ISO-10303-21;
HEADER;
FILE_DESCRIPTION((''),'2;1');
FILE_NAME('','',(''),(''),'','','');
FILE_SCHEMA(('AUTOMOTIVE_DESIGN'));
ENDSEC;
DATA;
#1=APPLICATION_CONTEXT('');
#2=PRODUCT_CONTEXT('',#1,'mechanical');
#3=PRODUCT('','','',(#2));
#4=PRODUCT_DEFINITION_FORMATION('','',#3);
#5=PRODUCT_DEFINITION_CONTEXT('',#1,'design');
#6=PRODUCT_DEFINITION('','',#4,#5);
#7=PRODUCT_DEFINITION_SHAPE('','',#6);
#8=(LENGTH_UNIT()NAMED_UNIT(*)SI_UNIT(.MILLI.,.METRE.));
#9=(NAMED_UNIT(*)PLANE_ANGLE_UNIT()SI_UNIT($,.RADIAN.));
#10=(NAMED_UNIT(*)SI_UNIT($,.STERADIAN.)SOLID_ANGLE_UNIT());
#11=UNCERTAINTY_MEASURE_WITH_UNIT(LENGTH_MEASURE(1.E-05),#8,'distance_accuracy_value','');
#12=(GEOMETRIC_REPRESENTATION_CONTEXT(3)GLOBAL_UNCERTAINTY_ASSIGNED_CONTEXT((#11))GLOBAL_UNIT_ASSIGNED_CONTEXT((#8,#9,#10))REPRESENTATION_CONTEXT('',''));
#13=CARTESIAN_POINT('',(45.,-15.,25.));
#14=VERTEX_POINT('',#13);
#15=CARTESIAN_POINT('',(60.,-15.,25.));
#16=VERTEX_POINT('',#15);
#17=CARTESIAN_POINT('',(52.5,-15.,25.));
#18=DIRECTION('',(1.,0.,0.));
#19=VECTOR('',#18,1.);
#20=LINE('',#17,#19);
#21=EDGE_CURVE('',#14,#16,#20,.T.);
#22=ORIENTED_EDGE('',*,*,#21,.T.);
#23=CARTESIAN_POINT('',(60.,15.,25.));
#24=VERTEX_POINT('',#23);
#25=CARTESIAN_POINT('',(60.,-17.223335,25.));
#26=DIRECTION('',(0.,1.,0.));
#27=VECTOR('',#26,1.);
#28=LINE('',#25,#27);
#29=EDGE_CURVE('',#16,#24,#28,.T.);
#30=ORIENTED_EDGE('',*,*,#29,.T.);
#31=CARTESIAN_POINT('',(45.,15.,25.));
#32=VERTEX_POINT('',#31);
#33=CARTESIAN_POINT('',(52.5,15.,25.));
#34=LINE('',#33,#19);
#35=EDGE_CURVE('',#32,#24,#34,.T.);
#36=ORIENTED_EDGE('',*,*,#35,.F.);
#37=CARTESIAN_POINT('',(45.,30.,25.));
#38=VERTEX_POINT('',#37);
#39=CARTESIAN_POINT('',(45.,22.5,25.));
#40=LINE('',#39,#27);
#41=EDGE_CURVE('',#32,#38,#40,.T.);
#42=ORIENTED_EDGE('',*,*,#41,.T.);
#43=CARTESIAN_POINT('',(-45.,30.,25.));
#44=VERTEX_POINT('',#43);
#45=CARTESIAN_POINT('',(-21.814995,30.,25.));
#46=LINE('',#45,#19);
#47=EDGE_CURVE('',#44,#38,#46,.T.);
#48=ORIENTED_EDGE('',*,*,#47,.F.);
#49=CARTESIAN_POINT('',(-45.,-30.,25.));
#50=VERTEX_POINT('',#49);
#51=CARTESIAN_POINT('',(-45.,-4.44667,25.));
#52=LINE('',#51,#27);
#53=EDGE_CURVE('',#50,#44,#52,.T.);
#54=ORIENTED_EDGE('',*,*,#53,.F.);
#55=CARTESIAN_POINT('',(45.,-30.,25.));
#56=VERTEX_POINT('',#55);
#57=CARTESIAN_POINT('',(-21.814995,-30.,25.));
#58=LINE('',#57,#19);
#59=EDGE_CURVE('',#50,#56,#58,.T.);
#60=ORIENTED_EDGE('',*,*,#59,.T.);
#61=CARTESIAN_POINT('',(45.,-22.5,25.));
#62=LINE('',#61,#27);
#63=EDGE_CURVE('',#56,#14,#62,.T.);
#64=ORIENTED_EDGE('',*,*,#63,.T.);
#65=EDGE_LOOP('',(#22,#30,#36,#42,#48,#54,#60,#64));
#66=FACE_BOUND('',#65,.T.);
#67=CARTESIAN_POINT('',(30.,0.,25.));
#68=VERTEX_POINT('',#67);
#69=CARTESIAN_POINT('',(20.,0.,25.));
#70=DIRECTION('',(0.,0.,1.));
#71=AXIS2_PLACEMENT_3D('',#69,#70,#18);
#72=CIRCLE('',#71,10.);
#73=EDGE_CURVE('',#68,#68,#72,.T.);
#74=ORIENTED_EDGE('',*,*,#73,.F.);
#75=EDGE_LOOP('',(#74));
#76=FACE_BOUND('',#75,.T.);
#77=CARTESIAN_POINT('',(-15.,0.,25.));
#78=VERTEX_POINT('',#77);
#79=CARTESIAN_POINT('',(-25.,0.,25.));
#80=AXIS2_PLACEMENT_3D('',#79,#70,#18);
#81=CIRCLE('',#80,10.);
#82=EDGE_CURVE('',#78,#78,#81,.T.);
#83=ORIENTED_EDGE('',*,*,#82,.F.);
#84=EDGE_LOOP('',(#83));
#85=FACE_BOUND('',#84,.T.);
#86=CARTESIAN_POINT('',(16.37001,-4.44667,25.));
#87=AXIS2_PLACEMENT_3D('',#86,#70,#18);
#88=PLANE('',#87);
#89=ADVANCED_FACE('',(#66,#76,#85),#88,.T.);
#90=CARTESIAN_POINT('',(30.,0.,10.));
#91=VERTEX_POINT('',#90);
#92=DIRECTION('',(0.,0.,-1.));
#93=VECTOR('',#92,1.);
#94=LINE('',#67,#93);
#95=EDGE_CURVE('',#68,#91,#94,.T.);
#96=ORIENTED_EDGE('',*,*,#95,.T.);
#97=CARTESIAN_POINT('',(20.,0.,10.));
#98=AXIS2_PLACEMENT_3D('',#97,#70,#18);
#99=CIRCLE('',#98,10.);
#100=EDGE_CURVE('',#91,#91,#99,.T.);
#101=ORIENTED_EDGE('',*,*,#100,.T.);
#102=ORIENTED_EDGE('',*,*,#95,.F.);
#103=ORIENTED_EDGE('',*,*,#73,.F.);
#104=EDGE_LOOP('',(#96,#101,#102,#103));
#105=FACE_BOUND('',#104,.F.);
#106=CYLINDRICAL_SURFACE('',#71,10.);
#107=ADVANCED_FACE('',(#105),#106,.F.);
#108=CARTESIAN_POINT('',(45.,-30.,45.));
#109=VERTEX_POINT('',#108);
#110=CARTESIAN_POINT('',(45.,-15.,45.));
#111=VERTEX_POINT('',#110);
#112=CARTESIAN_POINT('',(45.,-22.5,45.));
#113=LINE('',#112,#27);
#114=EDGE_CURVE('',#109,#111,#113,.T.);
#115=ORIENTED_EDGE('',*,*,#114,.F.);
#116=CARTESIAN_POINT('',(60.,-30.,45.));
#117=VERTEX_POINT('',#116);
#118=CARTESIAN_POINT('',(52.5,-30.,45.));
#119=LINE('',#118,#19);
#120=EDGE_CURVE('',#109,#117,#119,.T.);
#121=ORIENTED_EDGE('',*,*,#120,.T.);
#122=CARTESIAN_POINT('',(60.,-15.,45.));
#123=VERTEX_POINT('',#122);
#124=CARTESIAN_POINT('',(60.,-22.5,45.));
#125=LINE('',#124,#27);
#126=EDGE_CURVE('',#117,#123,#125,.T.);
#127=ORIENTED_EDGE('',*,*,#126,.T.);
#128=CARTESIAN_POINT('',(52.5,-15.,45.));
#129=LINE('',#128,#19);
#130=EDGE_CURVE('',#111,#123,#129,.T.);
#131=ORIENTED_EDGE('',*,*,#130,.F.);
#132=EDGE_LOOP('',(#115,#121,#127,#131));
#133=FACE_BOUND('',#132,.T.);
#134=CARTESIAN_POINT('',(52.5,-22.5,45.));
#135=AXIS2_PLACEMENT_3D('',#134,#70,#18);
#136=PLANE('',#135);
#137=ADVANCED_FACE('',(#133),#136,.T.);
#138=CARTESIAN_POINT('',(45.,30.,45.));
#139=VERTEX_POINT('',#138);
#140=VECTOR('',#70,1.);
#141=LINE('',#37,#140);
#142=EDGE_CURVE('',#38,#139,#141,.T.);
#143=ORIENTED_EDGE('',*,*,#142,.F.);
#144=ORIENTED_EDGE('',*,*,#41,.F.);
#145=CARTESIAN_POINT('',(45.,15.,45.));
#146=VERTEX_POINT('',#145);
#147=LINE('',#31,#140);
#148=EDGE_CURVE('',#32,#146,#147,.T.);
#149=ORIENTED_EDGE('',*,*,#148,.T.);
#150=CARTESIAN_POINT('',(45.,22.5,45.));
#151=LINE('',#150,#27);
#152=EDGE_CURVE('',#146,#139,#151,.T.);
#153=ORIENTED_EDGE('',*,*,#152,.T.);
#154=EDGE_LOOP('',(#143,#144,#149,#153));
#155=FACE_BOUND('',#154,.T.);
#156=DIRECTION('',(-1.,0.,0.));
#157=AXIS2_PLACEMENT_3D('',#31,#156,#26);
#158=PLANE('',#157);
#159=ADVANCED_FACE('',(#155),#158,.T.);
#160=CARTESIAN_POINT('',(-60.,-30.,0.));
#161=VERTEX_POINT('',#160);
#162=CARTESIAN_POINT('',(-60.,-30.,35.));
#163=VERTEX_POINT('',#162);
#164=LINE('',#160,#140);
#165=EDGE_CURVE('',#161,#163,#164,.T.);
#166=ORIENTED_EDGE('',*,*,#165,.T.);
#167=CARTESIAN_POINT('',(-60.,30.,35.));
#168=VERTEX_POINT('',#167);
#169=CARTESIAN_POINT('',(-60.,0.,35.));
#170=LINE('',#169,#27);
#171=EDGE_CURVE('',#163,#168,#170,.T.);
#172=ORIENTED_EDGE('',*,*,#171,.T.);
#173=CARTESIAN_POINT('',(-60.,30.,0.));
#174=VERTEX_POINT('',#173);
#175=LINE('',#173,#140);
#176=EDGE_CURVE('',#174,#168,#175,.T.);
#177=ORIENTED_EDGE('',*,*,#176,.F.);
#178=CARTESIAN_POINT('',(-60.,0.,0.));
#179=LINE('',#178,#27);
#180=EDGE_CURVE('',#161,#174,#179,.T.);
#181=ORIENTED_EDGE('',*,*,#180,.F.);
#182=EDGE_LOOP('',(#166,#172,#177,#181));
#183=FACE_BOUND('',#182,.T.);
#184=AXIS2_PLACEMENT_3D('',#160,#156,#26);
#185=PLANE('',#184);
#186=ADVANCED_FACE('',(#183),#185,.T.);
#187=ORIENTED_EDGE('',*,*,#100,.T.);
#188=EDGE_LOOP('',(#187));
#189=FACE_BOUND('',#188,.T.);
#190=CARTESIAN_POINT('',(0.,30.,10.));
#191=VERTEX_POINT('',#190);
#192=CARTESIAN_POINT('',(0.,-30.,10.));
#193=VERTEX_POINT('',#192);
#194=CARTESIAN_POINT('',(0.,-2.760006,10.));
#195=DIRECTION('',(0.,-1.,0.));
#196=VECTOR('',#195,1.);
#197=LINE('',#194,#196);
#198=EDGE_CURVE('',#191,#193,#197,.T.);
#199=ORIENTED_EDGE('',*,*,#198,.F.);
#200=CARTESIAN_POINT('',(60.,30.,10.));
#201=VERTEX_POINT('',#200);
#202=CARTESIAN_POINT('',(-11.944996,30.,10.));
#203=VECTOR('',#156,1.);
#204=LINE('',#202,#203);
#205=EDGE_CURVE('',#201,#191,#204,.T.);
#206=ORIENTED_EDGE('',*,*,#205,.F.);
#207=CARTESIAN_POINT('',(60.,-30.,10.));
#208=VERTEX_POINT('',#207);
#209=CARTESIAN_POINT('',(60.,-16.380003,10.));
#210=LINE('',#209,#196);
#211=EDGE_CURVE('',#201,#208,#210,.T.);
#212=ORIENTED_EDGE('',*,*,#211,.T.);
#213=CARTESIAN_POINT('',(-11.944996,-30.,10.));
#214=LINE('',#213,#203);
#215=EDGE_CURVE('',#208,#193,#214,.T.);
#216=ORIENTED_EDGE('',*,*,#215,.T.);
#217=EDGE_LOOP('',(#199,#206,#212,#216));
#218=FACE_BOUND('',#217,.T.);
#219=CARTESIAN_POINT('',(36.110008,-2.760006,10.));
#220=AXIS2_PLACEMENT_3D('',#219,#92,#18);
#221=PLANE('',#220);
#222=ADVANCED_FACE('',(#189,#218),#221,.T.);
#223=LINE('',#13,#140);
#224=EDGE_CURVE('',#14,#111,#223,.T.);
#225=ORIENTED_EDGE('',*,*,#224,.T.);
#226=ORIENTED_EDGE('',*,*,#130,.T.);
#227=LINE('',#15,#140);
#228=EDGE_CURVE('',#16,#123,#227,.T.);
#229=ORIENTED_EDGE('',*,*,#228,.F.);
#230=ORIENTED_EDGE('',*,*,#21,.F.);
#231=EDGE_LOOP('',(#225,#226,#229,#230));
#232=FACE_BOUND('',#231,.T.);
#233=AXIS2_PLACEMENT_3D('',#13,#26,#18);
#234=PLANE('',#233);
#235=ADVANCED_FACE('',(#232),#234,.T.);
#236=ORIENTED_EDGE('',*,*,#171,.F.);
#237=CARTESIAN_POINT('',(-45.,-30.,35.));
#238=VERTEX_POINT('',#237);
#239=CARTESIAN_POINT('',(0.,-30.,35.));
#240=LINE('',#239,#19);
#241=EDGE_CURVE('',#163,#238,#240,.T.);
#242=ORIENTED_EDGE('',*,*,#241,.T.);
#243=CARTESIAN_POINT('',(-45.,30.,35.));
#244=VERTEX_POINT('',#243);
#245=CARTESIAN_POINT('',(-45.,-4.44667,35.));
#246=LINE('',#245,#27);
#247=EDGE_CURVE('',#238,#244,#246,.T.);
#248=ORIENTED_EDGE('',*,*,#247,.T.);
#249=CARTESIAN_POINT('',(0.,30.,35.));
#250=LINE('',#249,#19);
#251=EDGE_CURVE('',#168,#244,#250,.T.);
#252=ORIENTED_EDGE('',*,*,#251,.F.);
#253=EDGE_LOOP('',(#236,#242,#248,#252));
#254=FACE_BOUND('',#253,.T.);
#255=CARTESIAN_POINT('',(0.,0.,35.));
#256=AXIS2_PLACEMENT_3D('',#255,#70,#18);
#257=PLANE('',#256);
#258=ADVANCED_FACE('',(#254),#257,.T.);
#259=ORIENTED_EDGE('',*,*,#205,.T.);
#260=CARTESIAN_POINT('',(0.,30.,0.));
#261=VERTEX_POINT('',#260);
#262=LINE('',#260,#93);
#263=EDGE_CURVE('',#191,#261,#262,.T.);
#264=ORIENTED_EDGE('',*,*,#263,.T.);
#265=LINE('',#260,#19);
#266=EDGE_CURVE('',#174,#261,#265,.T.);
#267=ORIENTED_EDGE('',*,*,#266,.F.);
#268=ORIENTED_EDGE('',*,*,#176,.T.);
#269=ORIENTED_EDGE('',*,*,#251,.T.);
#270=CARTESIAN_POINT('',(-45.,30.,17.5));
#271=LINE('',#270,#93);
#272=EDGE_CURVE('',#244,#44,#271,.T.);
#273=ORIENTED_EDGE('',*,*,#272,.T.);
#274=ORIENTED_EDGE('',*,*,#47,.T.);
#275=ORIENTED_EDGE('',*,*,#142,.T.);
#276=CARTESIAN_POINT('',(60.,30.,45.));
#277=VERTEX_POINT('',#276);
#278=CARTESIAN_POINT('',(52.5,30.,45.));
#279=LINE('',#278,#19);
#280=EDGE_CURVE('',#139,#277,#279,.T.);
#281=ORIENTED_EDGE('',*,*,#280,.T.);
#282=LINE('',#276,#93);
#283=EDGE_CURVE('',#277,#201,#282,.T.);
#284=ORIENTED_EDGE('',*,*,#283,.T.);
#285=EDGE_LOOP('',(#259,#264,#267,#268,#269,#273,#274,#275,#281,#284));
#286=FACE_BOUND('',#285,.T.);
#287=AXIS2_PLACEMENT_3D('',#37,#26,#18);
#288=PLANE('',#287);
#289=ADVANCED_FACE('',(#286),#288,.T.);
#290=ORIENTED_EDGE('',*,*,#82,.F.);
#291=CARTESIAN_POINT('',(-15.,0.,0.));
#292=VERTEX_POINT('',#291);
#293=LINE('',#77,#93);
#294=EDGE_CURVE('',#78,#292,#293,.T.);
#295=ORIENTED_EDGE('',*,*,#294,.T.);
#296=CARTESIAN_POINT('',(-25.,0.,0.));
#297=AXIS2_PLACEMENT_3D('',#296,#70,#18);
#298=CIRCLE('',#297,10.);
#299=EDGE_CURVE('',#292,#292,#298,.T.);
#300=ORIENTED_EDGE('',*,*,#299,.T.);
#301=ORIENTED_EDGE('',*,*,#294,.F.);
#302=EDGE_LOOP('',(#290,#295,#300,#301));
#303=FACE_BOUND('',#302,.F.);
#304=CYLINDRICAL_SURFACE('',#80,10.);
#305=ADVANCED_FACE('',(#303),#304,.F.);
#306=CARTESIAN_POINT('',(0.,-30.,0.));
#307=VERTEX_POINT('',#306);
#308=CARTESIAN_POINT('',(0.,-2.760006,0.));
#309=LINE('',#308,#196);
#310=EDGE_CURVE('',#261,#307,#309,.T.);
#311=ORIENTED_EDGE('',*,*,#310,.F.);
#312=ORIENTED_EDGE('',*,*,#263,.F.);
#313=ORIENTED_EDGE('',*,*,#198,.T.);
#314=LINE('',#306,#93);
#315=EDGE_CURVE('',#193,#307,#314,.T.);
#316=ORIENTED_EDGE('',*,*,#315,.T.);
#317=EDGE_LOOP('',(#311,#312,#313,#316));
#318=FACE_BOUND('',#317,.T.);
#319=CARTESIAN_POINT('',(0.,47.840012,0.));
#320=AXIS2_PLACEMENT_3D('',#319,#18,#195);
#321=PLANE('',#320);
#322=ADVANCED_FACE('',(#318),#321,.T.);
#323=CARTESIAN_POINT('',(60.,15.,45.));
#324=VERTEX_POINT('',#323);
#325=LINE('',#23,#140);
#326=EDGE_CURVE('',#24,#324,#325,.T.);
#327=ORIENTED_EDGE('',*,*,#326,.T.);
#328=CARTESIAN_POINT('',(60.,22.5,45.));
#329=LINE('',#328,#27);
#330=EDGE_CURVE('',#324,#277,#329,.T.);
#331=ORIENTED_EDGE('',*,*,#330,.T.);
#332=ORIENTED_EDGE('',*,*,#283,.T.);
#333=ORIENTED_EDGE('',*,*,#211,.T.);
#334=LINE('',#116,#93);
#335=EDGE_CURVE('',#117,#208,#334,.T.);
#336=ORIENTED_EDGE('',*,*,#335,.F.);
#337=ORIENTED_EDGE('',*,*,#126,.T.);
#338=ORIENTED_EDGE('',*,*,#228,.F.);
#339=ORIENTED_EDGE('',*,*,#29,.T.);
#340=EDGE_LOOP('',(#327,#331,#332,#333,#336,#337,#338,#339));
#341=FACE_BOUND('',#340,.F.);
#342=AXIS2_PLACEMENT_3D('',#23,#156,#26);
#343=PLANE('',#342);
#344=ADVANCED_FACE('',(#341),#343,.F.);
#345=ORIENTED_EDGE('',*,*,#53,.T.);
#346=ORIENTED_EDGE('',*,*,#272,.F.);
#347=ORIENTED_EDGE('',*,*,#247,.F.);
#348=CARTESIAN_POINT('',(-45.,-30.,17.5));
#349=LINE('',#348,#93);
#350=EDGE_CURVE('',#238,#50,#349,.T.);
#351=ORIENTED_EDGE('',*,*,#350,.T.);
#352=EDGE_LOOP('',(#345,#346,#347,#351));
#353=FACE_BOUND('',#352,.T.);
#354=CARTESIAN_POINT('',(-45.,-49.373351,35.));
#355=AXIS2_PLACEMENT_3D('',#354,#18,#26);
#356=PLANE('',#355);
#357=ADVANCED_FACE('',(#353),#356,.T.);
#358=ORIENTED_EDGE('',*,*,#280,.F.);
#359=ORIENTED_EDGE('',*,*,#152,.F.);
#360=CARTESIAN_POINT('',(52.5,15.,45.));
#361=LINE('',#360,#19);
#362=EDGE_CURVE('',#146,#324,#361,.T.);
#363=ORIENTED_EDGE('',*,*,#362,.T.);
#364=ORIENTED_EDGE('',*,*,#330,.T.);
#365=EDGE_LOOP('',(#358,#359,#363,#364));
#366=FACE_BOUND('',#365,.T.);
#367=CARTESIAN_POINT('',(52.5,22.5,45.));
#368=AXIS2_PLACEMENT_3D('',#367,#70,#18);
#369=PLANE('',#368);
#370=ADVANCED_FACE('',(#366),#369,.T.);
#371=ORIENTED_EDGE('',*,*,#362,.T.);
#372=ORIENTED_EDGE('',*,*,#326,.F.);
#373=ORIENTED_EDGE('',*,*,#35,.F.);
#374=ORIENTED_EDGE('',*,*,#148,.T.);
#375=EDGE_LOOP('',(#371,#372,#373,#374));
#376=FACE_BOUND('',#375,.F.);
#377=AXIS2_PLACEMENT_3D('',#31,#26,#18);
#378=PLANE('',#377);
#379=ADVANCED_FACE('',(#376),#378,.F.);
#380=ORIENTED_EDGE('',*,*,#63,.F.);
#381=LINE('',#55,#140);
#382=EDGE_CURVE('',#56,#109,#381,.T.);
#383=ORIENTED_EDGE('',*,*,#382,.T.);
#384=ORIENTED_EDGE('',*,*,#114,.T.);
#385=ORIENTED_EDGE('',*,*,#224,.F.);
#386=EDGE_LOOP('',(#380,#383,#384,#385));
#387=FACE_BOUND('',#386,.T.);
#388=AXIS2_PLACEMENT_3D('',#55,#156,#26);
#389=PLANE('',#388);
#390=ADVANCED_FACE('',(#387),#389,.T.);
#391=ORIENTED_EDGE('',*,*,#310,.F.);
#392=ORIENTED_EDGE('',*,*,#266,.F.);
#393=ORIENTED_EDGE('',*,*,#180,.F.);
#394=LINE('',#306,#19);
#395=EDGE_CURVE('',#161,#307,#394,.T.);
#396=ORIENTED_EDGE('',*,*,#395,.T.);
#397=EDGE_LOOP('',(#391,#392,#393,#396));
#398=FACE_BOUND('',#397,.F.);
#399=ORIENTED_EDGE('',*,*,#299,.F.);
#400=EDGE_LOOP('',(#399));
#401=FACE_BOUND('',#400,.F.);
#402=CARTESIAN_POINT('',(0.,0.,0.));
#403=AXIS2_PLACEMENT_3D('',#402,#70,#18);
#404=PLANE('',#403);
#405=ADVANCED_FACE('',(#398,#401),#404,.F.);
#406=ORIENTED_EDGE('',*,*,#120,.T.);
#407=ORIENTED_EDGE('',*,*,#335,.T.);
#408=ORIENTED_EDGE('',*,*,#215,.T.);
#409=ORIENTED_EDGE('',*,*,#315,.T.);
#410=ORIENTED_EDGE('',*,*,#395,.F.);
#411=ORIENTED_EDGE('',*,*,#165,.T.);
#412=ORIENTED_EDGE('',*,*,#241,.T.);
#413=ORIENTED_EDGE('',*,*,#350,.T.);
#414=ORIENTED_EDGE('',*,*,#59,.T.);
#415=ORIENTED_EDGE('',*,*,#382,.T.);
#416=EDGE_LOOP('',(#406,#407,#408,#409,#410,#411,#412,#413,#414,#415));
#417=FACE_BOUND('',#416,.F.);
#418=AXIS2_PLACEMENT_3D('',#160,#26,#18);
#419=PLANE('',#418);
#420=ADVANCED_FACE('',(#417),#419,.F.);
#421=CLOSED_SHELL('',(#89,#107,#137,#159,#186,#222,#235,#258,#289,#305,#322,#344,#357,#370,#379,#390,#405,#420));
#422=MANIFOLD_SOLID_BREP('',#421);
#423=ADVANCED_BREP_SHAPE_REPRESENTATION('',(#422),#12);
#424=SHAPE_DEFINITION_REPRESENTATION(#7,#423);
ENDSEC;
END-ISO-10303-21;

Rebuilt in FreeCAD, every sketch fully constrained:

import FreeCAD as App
import Part
import Sketcher
Q = App.Units.Quantity


def add_polygon(sketch, points):
    """Adds a closed chain of lines whose ends are joined by coincident constraints."""
    first, n = sketch.GeometryCount, len(points)
    for a, b in zip(points, points[1:] + points[:1]):
        sketch.addGeometry(Part.LineSegment(App.Vector(*a, 0), App.Vector(*b, 0)), False)
    for i in range(n):
        sketch.addConstraint(Sketcher.Constraint("Coincident", first + i, 2, first + (i + 1) % n, 1))

doc = App.newDocument("Part")
body = doc.addObject("PartDesign::Body", "Body")

# Sketch on XY plane
sketch1 = body.newObject("Sketcher::SketchObject", "Sketch")
sketch1.AttachmentSupport = (doc.getObject("XY_Plane"), [""])
sketch1.MapMode = "FlatFace"
add_polygon(sketch1, [(-60, 30), (-60, -30), (60, -30), (60, 30)])  # lines 0-3
sketch1.addConstraint([
    Sketcher.Constraint("Vertical", 0),
    Sketcher.Constraint("Horizontal", 1),
    Sketcher.Constraint("Vertical", 2),
    Sketcher.Constraint("Horizontal", 3),
    Sketcher.Constraint("Symmetric", 0, 2, 2, 2, -1, 1),
    Sketcher.Constraint("DistanceX", 1, 1, 1, 2, Q("120 mm")),
    Sketcher.Constraint("DistanceY", 0, 2, 0, 1, Q("60 mm")),
])
pad1 = body.newObject("PartDesign::Pad", "Pad")
pad1.Profile = sketch1
pad1.Length = 35

# Sketch on XY plane
sketch2 = body.newObject("Sketcher::SketchObject", "Sketch001")
sketch2.AttachmentSupport = (doc.getObject("XY_Plane"), [""])
sketch2.MapMode = "FlatFace"
sketch2.AttachmentOffset = App.Placement(App.Vector(0, 0, 35), App.Rotation())
add_polygon(sketch2, [(-45, 40), (-45, -49), (78, -49), (78, 40)])  # lines 0-3
sketch2.addConstraint([
    Sketcher.Constraint("Vertical", 0),
    Sketcher.Constraint("Horizontal", 1),
    Sketcher.Constraint("Vertical", 2),
    Sketcher.Constraint("Horizontal", 3),
    Sketcher.Constraint("DistanceX", 0, 2, -1, 1, Q("45 mm")),
    Sketcher.Constraint("DistanceX", 1, 1, 1, 2, Q("122.740021 mm")),
    Sketcher.Constraint("DistanceY", 0, 2, 0, 1, Q("89.853363 mm")),
    Sketcher.Constraint("DistanceY", 0, 2, -1, 1, Q("49.373351 mm")),
])
pocket1 = body.newObject("PartDesign::Pocket", "Pocket")
pocket1.Profile = sketch2
pocket1.Length = 10

# Sketch on XY plane
sketch3 = body.newObject("Sketcher::SketchObject", "Sketch002")
sketch3.AttachmentSupport = (doc.getObject("XY_Plane"), [""])
sketch3.MapMode = "FlatFace"
add_polygon(sketch3, [(0, -53), (0, 48), (72, 48), (72, -53)])  # lines 0-3
sketch3.addConstraint([
    Sketcher.Constraint("Vertical", 0),
    Sketcher.Constraint("Horizontal", 1),
    Sketcher.Constraint("Vertical", 2),
    Sketcher.Constraint("Horizontal", 3),
    Sketcher.Constraint("PointOnObject", 0, 2, -2),
    Sketcher.Constraint("DistanceX", 1, 1, 1, 2, Q("72.220016 mm")),
    Sketcher.Constraint("DistanceY", 0, 1, 0, 2, Q("101.200035 mm")),
    Sketcher.Constraint("DistanceY", -1, 1, 0, 2, Q("47.840012 mm")),
])
pocket2 = body.newObject("PartDesign::Pocket", "Pocket001")
pocket2.Profile = sketch3
pocket2.Length = 10
pocket2.Reversed = True

# Sketch on XY plane
sketch4 = body.newObject("Sketcher::SketchObject", "Sketch003")
sketch4.AttachmentSupport = (doc.getObject("XY_Plane"), [""])
sketch4.MapMode = "FlatFace"
sketch4.AttachmentOffset = App.Placement(App.Vector(0, 0, 25), App.Rotation())
add_polygon(sketch4, [(45, 30), (45, 15), (60, 15), (60, 30)])  # lines 0-3
add_polygon(sketch4, [(45, -15), (45, -30), (60, -30), (60, -15)])  # lines 4-7
sketch4.addConstraint([
    Sketcher.Constraint("Vertical", 0),
    Sketcher.Constraint("Horizontal", 1),
    Sketcher.Constraint("Vertical", 2),
    Sketcher.Constraint("Horizontal", 3),
    Sketcher.Constraint("Vertical", 4),
    Sketcher.Constraint("Horizontal", 5),
    Sketcher.Constraint("Vertical", 6),
    Sketcher.Constraint("Horizontal", 7),
    Sketcher.Constraint("Symmetric", 3, 2, 4, 2, -1),
    Sketcher.Constraint("Symmetric", 1, 2, 6, 2, -1),
    Sketcher.Constraint("Equal", 7, 0),
    Sketcher.Constraint("DistanceX", 1, 1, 1, 2, Q("15 mm")),
    Sketcher.Constraint("DistanceX", -1, 1, 0, 2, Q("45 mm")),
    Sketcher.Constraint("DistanceY", -1, 1, 0, 2, Q("15 mm")),
])
pad2 = body.newObject("PartDesign::Pad", "Pad001")
pad2.Profile = sketch4
pad2.Length = 20

# Sketch on XY plane
sketch5 = body.newObject("Sketcher::SketchObject", "Sketch004")
sketch5.AttachmentSupport = (doc.getObject("XY_Plane"), [""])
sketch5.MapMode = "FlatFace"
sketch5.AttachmentOffset = App.Placement(App.Vector(0, 0, 25), App.Rotation())
sketch5.addGeometry([
    Part.Circle(App.Vector(-25, 0, 0), App.Vector(0, 0, 1), 10),
    Part.Circle(App.Vector(20, 0, 0), App.Vector(0, 0, 1), 10),
], False)
sketch5.addConstraint([
    Sketcher.Constraint("Equal", 0, 1),
    Sketcher.Constraint("PointOnObject", 0, 3, -1),
    Sketcher.Constraint("PointOnObject", 1, 3, -1),
    Sketcher.Constraint("Diameter", 0, Q("20 mm")),
    Sketcher.Constraint("DistanceX", 0, 3, -1, 1, Q("25 mm")),
    Sketcher.Constraint("DistanceX", -1, 1, 1, 3, Q("20 mm")),
])
pocket3 = body.newObject("PartDesign::Pocket", "Pocket002")
pocket3.Profile = sketch5
pocket3.Type = "ThroughAll"

doc.recompute()
